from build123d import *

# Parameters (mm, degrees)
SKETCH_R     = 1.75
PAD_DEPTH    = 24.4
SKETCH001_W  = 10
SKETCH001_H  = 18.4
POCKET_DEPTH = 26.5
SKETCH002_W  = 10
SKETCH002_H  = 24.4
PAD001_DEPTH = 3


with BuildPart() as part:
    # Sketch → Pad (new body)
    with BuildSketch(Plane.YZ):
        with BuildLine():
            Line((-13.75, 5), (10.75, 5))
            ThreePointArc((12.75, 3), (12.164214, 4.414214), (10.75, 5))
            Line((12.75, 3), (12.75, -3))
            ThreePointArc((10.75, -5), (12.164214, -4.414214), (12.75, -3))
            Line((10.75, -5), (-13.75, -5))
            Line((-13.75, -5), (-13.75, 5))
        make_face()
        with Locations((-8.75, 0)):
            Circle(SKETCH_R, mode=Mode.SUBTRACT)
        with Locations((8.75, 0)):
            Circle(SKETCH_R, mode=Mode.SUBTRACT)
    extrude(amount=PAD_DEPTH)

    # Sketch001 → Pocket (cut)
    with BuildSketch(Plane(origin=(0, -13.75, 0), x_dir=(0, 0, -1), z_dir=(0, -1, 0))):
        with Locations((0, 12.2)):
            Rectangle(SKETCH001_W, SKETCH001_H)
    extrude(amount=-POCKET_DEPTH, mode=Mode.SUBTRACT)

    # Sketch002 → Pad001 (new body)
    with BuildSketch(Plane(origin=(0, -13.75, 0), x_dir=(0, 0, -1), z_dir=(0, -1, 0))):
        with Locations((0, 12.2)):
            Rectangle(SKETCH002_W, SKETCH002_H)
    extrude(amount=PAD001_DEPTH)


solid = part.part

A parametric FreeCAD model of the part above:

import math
import FreeCAD as App
import Part
import Sketcher

V = App.Vector
Q = App.Units.Quantity

doc = App.newDocument("Part")
body = doc.addObject("PartDesign::Body", "Body")
body.AllowCompound = True

# Sketch on YZ plane
sketch1 = body.newObject("Sketcher::SketchObject", "Sketch")
sketch1.AttachmentSupport = (doc.getObject("YZ_Plane"), [""])
sketch1.MapMode = "FlatFace"
sketch1.addGeometry([
    Part.LineSegment(V(10.8, 5, 0), V(-13.8, 5, 0)),  # 0
    Part.LineSegment(V(-13.8, 5, 0), V(-13.8, -5, 0)),  # 1
    Part.LineSegment(V(-13.8, -5, 0), V(10.8, -5, 0)),  # 2
    Part.ArcOfCircle(Part.Circle(V(10.8, -3, 0), V(0, 0, 1), 2), math.radians(-90), math.radians(0)),  # 3
    Part.LineSegment(V(12.8, -3, 0), V(12.8, 3, 0)),  # 4
    Part.ArcOfCircle(Part.Circle(V(10.8, 3, 0), V(0, 0, 1), 2), math.radians(0), math.radians(90)),  # 5
    Part.Circle(V(8.8, 0, 0), V(0, 0, 1), 1.8),  # 6
    Part.Circle(V(-8.8, 0, 0), V(0, 0, 1), 1.8),  # 7
], False)
sketch1.addConstraint([
    Sketcher.Constraint("Coincident", 0, 2, 1, 1),
    Sketcher.Constraint("Coincident", 1, 2, 2, 1),
    Sketcher.Constraint("Tangent", 2, 2, 3, 1),
    Sketcher.Constraint("Tangent", 3, 2, 4, 1),
    Sketcher.Constraint("Tangent", 4, 2, 5, 1),
    Sketcher.Constraint("Tangent", 5, 2, 0, 1),
    Sketcher.Constraint("Horizontal", 0),
    Sketcher.Constraint("Vertical", 1),
    Sketcher.Constraint("Horizontal", 2),
    Sketcher.Constraint("Vertical", 4),
    Sketcher.Constraint("Equal", 3, 5),
    Sketcher.Constraint("Equal", 6, 7),
    Sketcher.Constraint("Symmetric", 6, 3, 7, 3, -1, 1),
    Sketcher.Constraint("PointOnObject", 6, 3, -1),
    Sketcher.Constraint("Radius", 3, Q("1.999999 mm")),
    Sketcher.Constraint("Diameter", 6, Q("3.5 mm")),
    Sketcher.Constraint("DistanceY", 1, 2, 1, 1, Q("10 mm")),
    Sketcher.Constraint("DistanceX", 0, 2, 0, 1, Q("24.5 mm")),
    Sketcher.Constraint("DistanceY", 3, 3, -1, 1, Q("3.000001 mm")),
    Sketcher.Constraint("DistanceX", 6, 3, 3, 3, Q("2.000001 mm")),
    Sketcher.Constraint("DistanceX", 0, 2, 7, 3, Q("5 mm")),
])
pad1 = body.newObject("PartDesign::Pad", "Pad")
pad1.Profile = sketch1
pad1.Length = 24.4

# Sketch on XZ plane
sketch2 = body.newObject("Sketcher::SketchObject", "Sketch001")
sketch2.AttachmentSupport = (doc.getObject("XZ_Plane"), [""])
sketch2.MapMode = "FlatFace"
sketch2.AttachmentOffset = App.Placement(V(0, 0, 13.75), App.Rotation())
sketch2.addGeometry([
    Part.LineSegment(V(21, 5, 0), V(3, 5, 0)),
    Part.LineSegment(V(3, 5, 0), V(3, -5, 0)),
    Part.LineSegment(V(3, -5, 0), V(21, -5, 0)),
    Part.LineSegment(V(21, -5, 0), V(21, 5, 0)),
], False)
sketch2.addConstraint([
    Sketcher.Constraint("Coincident", 0, 2, 1, 1),
    Sketcher.Constraint("Coincident", 1, 2, 2, 1),
    Sketcher.Constraint("Coincident", 2, 2, 3, 1),
    Sketcher.Constraint("Coincident", 3, 2, 0, 1),
    Sketcher.Constraint("Horizontal", 0),
    Sketcher.Constraint("Vertical", 1),
    Sketcher.Constraint("Horizontal", 2),
    Sketcher.Constraint("Vertical", 3),
    Sketcher.Constraint("DistanceY", 1, 2, 1, 1, Q("10 mm")),
    Sketcher.Constraint("DistanceX", 0, 2, 0, 1, Q("18.4 mm")),
    Sketcher.Constraint("DistanceX", -1, 1, 0, 2, Q("3 mm")),
    Sketcher.Constraint("DistanceY", -1, 1, 0, 2, Q("5 mm")),
])
pocket1 = body.newObject("PartDesign::Pocket", "Pocket")
pocket1.Profile = sketch2
pocket1.Length = 26.5

# Sketch on XZ plane
sketch3 = body.newObject("Sketcher::SketchObject", "Sketch002")
sketch3.AttachmentSupport = (doc.getObject("XZ_Plane"), [""])
sketch3.MapMode = "FlatFace"
sketch3.AttachmentOffset = App.Placement(V(0, 0, 13.75), App.Rotation())
sketch3.addGeometry([
    Part.LineSegment(V(24, 5, 0), V(0, 5, 0)),
    Part.LineSegment(V(0, 5, 0), V(0, -5, 0)),
    Part.LineSegment(V(0, -5, 0), V(24, -5, 0)),
    Part.LineSegment(V(24, -5, 0), V(24, 5, 0)),
], False)
sketch3.addConstraint([
    Sketcher.Constraint("Coincident", 0, 2, 1, 1),
    Sketcher.Constraint("Coincident", 1, 2, 2, 1),
    Sketcher.Constraint("Coincident", 2, 2, 3, 1),
    Sketcher.Constraint("Coincident", 3, 2, 0, 1),
    Sketcher.Constraint("Horizontal", 0),
    Sketcher.Constraint("Vertical", 1),
    Sketcher.Constraint("Horizontal", 2),
    Sketcher.Constraint("Vertical", 3),
    Sketcher.Constraint("Symmetric", 0, 2, 1, 2, -1, 1),
    Sketcher.Constraint("DistanceY", 1, 2, 1, 1, Q("10 mm")),
    Sketcher.Constraint("DistanceX", 0, 2, 0, 1, Q("24.4 mm")),
])
pad2 = body.newObject("PartDesign::Pad", "Pad001")
pad2.Profile = sketch3
pad2.Length = 3

doc.recompute()
